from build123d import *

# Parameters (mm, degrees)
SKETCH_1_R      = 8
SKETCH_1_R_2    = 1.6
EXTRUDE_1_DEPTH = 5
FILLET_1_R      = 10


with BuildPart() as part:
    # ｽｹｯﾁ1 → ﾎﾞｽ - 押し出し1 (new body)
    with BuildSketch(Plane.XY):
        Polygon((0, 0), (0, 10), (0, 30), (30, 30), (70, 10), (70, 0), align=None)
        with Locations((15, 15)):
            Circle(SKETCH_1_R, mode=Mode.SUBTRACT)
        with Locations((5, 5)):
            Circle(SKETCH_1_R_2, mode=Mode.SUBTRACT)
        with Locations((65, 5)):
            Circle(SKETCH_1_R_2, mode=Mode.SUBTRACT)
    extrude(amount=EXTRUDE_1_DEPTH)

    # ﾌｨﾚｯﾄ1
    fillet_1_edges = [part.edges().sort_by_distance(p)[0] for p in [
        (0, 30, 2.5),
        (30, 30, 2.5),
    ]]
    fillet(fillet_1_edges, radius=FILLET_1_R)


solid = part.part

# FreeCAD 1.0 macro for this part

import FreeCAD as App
import Part
import Sketcher


def edges_at(feature, points):
    """Names of the edges that pass closest to the given points."""
    edges = feature.Shape.Edges
    near = lambda p: min(range(len(edges)), key=lambda i: edges[i].distToShape(Part.Vertex(*p))[0])
    return sorted({f"Edge{near(p) + 1}" for p in points})

doc = App.newDocument("Part")
params = doc.addObject("Spreadsheet::Sheet", "Params")
for row, (alias, value) in enumerate([
    ("sketch1_diameter", "16 mm"),
    ("sketch1_diameter2", "3.2 mm"),
    ("sketch1_width", "70 mm"),
    ("sketch1_width2", "30 mm"),
    ("sketch1_height", "10 mm"),
    ("pad1_length", "5 mm"),
    ("fillet_radius", "10 mm"),
], start=1):
    params.set(f"A{row}", alias)
    params.set(f"B{row}", "=" + value)
    params.setAlias(f"B{row}", alias)

body = doc.addObject("PartDesign::Body", "Body")

# Sketch on XY plane
sketch1 = body.newObject("Sketcher::SketchObject", "Sketch")
sketch1.AttachmentSupport = (doc.getObject("XY_Plane"), [""])
sketch1.MapMode = "FlatFace"
sketch1.addGeometry(Part.LineSegment(App.Vector(0, 30, 0), App.Vector(0, 0, 0)), False)
sketch1.addGeometry(Part.LineSegment(App.Vector(0, 0, 0), App.Vector(70, 0, 0)), False)
sketch1.addGeometry(Part.LineSegment(App.Vector(70, 0, 0), App.Vector(70, 10, 0)), False)
sketch1.addGeometry(Part.LineSegment(App.Vector(70, 10, 0), App.Vector(30, 30, 0)), False)
sketch1.addGeometry(Part.LineSegment(App.Vector(30, 30, 0), App.Vector(0, 30, 0)), False)
sketch1.addGeometry(Part.Circle(App.Vector(65, 5, 0), App.Vector(0, 0, 1), 1.6), False)
sketch1.addGeometry(Part.Circle(App.Vector(5, 5, 0), App.Vector(0, 0, 1), 1.6), False)
sketch1.addGeometry(Part.Circle(App.Vector(15, 15, 0), App.Vector(0, 0, 1), 8), False)
sketch1.addConstraint(Sketcher.Constraint("Coincident", 0, 2, 1, 1))
sketch1.addConstraint(Sketcher.Constraint("Coincident", 1, 2, 2, 1))
sketch1.addConstraint(Sketcher.Constraint("Coincident", 2, 2, 3, 1))
sketch1.addConstraint(Sketcher.Constraint("Coincident", 3, 2, 4, 1))
sketch1.addConstraint(Sketcher.Constraint("Coincident", 4, 2, 0, 1))
sketch1.addConstraint(Sketcher.Constraint("Vertical", 0))
sketch1.addConstraint(Sketcher.Constraint("Horizontal", 1))
sketch1.addConstraint(Sketcher.Constraint("Vertical", 2))
sketch1.addConstraint(Sketcher.Constraint("Horizontal", 4))
sketch1.addConstraint(Sketcher.Constraint("Coincident", 0, 2, -1, 1))
sketch1.addConstraint(Sketcher.Constraint("Equal", 5, 6))
sketch1.addConstraint(Sketcher.Constraint("Horizontal", 5, 3, 6, 3))
sketch1.addConstraint(Sketcher.Constraint("Equal", 4, 0))
sketch1.addConstraint(Sketcher.Constraint("Diameter", 7, 16.0))
sketch1.addConstraint(Sketcher.Constraint("Diameter", 5, 3.2))
sketch1.addConstraint(Sketcher.Constraint("DistanceX", 1, 1, 1, 2, 70.0))
sketch1.addConstraint(Sketcher.Constraint("DistanceX", 4, 2, 4, 1, 30.0))
sketch1.addConstraint(Sketcher.Constraint("DistanceY", 2, 1, 2, 2, 10.0))
sketch1.addConstraint(Sketcher.Constraint("DistanceX", -1, 1, 5, 3, 65.0))
sketch1.addConstraint(Sketcher.Constraint("DistanceY", -1, 1, 5, 3, 5.0))
sketch1.addConstraint(Sketcher.Constraint("DistanceX", -1, 1, 6, 3, 5.0))
sketch1.addConstraint(Sketcher.Constraint("DistanceX", -1, 1, 7, 3, 15.0))
sketch1.addConstraint(Sketcher.Constraint("DistanceY", -1, 1, 7, 3, 15.0))
sketch1.setExpression("Constraints[13]", "Params.sketch1_diameter")
sketch1.setExpression("Constraints[14]", "Params.sketch1_diameter2")
sketch1.setExpression("Constraints[15]", "Params.sketch1_width")
sketch1.setExpression("Constraints[16]", "Params.sketch1_width2")
sketch1.setExpression("Constraints[17]", "Params.sketch1_height")
pad1 = body.newObject("PartDesign::Pad", "Pad")
pad1.Profile = sketch1
pad1.setExpression("Length", "Params.pad1_length")
doc.recompute()

fillet = body.newObject("PartDesign::Fillet", "Fillet")
fillet.Base = (pad1, edges_at(pad1, [(0, 30, 2.5), (30, 30, 2.5)]))
fillet.setExpression("Radius", "Params.fillet_radius")

doc.recompute()
